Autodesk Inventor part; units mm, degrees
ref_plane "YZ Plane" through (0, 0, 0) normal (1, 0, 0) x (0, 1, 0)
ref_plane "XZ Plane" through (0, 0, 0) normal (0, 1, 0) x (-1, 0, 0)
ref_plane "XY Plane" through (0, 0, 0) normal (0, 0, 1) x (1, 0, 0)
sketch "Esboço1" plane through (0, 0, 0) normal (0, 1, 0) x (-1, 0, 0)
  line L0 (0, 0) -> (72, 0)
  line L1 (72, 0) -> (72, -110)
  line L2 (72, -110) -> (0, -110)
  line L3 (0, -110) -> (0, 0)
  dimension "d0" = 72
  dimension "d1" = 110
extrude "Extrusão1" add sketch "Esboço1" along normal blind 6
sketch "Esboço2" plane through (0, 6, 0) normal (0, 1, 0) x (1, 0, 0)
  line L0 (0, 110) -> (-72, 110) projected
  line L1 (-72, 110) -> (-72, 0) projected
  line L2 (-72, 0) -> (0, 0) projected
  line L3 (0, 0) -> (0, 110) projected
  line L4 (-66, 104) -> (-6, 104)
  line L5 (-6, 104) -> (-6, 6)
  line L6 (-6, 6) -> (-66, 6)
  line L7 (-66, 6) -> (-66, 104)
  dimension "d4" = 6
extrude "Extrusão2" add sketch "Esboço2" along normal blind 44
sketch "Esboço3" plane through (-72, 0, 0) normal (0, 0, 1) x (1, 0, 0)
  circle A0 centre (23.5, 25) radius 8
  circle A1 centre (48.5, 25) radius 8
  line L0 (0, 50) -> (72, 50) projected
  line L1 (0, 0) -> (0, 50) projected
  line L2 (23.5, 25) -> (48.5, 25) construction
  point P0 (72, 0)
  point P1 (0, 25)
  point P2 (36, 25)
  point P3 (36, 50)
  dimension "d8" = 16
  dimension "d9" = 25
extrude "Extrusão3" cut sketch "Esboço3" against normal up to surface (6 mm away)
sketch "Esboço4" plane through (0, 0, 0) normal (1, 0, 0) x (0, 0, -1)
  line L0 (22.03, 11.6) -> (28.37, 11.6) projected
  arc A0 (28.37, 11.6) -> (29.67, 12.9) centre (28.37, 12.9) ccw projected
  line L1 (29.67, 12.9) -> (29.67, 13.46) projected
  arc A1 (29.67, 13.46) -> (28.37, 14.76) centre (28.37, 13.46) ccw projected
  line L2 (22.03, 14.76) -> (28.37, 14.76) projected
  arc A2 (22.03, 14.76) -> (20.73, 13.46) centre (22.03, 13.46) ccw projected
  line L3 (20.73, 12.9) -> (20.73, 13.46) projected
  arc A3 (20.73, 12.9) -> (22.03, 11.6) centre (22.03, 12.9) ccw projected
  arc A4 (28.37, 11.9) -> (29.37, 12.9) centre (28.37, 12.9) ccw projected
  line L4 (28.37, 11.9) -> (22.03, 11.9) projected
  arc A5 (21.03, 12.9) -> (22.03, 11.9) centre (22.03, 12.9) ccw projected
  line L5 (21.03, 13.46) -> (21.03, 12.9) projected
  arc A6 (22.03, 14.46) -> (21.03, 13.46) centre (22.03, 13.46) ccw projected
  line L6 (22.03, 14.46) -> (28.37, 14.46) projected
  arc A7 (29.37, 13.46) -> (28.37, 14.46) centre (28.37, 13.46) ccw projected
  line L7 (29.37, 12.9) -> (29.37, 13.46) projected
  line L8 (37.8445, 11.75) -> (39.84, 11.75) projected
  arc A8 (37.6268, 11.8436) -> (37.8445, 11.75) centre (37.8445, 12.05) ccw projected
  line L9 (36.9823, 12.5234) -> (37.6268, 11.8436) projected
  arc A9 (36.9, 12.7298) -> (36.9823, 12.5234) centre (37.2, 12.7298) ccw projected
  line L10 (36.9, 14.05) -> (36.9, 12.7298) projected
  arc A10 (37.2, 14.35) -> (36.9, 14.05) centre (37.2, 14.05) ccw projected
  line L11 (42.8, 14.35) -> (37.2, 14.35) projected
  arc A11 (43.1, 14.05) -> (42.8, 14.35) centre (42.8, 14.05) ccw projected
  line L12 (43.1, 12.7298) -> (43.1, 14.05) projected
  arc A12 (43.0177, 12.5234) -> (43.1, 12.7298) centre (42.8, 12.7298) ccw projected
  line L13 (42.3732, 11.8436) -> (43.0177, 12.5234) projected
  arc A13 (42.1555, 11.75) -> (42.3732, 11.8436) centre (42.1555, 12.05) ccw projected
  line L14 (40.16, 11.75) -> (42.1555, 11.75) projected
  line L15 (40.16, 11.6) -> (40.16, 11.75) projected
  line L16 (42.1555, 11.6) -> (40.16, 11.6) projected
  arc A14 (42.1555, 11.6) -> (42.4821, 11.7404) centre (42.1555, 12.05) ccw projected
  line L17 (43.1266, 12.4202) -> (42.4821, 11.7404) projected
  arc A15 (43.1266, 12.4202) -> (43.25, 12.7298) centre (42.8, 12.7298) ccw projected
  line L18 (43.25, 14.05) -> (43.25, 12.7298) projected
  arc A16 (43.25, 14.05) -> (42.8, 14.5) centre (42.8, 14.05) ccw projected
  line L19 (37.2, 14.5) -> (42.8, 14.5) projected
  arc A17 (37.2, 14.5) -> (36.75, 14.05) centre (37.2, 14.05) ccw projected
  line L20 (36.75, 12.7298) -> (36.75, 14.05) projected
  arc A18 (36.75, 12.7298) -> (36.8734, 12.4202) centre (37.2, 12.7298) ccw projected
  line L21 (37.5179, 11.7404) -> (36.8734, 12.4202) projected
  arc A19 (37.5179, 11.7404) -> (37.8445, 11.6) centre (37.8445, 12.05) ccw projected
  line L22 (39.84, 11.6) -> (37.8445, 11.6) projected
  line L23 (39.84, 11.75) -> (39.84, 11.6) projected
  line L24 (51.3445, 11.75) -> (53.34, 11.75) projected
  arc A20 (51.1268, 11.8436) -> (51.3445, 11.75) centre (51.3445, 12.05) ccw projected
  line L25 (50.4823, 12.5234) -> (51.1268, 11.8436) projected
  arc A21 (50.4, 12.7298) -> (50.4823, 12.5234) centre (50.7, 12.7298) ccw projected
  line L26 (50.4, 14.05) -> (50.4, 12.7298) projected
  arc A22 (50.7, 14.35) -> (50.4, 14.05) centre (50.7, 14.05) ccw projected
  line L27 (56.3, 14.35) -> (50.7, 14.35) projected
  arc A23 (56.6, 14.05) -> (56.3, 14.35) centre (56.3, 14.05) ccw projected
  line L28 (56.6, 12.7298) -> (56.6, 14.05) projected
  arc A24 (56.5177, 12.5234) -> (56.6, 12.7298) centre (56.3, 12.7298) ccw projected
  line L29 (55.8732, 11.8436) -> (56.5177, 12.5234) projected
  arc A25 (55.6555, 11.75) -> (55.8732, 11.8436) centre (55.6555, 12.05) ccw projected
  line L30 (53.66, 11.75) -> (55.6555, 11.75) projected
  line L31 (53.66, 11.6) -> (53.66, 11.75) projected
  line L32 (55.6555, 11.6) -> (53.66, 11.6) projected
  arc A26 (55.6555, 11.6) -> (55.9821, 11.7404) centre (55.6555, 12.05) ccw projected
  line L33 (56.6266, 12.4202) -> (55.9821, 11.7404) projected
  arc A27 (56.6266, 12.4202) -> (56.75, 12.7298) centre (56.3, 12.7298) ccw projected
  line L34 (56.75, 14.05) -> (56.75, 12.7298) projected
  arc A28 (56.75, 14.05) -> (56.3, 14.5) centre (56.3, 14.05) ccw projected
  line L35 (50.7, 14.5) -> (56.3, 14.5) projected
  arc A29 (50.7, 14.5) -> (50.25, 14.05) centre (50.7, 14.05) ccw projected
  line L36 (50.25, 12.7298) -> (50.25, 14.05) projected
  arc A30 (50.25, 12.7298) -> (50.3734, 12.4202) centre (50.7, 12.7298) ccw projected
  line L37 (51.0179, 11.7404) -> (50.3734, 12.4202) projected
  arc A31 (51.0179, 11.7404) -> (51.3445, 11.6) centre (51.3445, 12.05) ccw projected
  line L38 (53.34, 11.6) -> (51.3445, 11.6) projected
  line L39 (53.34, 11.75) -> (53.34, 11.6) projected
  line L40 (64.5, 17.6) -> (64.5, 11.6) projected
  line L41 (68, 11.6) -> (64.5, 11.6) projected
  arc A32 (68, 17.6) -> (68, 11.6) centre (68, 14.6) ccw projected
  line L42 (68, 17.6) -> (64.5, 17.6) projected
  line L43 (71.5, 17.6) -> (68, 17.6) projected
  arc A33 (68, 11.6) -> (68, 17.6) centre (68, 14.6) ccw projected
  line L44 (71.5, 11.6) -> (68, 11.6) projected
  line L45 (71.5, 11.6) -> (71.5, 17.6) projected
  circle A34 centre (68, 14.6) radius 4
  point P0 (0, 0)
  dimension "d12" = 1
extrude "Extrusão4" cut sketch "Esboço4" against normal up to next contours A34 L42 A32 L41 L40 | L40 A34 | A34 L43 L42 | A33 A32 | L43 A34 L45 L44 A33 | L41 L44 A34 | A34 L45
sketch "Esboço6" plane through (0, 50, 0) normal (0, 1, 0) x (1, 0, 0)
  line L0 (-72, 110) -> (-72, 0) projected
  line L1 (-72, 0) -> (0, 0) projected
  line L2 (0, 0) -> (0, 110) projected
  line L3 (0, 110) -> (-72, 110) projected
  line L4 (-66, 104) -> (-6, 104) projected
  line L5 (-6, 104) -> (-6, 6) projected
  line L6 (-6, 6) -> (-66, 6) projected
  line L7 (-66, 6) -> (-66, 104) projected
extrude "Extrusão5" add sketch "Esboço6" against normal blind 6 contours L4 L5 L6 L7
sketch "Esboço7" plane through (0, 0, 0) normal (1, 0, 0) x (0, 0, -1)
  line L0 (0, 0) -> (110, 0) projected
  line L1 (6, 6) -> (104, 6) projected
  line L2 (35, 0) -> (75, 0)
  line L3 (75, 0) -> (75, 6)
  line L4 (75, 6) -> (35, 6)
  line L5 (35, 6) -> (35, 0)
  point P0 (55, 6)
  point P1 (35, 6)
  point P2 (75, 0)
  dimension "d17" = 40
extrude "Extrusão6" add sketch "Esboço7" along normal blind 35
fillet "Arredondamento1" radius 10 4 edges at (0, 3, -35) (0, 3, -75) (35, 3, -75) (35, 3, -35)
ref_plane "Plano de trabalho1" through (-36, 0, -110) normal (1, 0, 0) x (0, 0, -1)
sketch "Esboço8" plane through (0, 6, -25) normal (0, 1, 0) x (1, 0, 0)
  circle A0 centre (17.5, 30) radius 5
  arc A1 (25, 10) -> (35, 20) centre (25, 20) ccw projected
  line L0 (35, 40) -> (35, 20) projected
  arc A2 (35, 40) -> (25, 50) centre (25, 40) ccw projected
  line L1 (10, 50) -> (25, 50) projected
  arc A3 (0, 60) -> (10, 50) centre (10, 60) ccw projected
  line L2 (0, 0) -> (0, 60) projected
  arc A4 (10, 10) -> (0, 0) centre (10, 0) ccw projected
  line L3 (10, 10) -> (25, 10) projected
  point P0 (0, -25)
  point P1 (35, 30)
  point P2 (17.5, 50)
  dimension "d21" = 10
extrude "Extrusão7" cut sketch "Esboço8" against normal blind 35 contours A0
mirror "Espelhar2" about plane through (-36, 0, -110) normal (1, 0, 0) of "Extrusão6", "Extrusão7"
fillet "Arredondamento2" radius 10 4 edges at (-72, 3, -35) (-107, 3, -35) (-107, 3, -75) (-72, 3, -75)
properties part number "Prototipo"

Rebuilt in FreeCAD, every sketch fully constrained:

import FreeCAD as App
import Part
import Sketcher


def edges_at(feature, points):
    """Names of the edges that pass closest to the given points."""
    edges = feature.Shape.Edges
    near = lambda p: min(range(len(edges)), key=lambda i: edges[i].distToShape(Part.Vertex(*p))[0])
    return sorted({f"Edge{near(p) + 1}" for p in points})

doc = App.newDocument("Part")
body = doc.addObject("PartDesign::Body", "Body")

# Sketch on XZ plane
sketch1 = body.newObject("Sketcher::SketchObject", "Sketch")
sketch1.AttachmentSupport = (doc.getObject("XZ_Plane"), [""])
sketch1.MapMode = "FlatFace"
sketch1.addGeometry([
    Part.LineSegment(App.Vector(-72, 0, 0), App.Vector(0, 0, 0)),
    Part.LineSegment(App.Vector(0, 0, 0), App.Vector(0, -110, 0)),
    Part.LineSegment(App.Vector(0, -110, 0), App.Vector(-72, -110, 0)),
    Part.LineSegment(App.Vector(-72, -110, 0), App.Vector(-72, 0, 0)),
], False)
sketch1.addConstraint([
    Sketcher.Constraint("Coincident", 0, 2, 1, 1),
    Sketcher.Constraint("Coincident", 1, 2, 2, 1),
    Sketcher.Constraint("Coincident", 2, 2, 3, 1),
    Sketcher.Constraint("Coincident", 3, 2, 0, 1),
    Sketcher.Constraint("Horizontal", 0),
    Sketcher.Constraint("Vertical", 1),
    Sketcher.Constraint("Horizontal", 2),
    Sketcher.Constraint("Vertical", 3),
    Sketcher.Constraint("Coincident", 0, 2, -1, 1),
    Sketcher.Constraint("DistanceX", 0, 1, 0, 2, 72.0),
    Sketcher.Constraint("DistanceY", 1, 2, 1, 1, 110.0),
])
pad1 = body.newObject("PartDesign::Pad", "Pad")
pad1.Profile = sketch1
pad1.Length = 6
pad1.Reversed = True

# Sketch on XZ plane
sketch2 = body.newObject("Sketcher::SketchObject", "Sketch001")
sketch2.AttachmentSupport = (doc.getObject("XZ_Plane"), [""])
sketch2.MapMode = "FlatFace"
sketch2.AttachmentOffset = App.Placement(App.Vector(0, 0, -6), App.Rotation())
sketch2.addGeometry([
    Part.LineSegment(App.Vector(0, 0, 0), App.Vector(0, -110, 0)),  # 0
    Part.LineSegment(App.Vector(0, -110, 0), App.Vector(-72, -110, 0)),  # 1
    Part.LineSegment(App.Vector(-72, -110, 0), App.Vector(-72, 0, 0)),  # 2
    Part.LineSegment(App.Vector(-72, 0, 0), App.Vector(0, 0, 0)),  # 3
    Part.LineSegment(App.Vector(-66, -6, 0), App.Vector(-66, -104, 0)),  # 4
    Part.LineSegment(App.Vector(-66, -104, 0), App.Vector(-6, -104, 0)),  # 5
    Part.LineSegment(App.Vector(-6, -104, 0), App.Vector(-6, -6, 0)),  # 6
    Part.LineSegment(App.Vector(-6, -6, 0), App.Vector(-66, -6, 0)),  # 7
], False)
sketch2.addConstraint([
    Sketcher.Constraint("Coincident", 0, 2, 1, 1),
    Sketcher.Constraint("Coincident", 1, 2, 2, 1),
    Sketcher.Constraint("Coincident", 2, 2, 3, 1),
    Sketcher.Constraint("Coincident", 3, 2, 0, 1),
    Sketcher.Constraint("Coincident", 4, 2, 5, 1),
    Sketcher.Constraint("Coincident", 5, 2, 6, 1),
    Sketcher.Constraint("Coincident", 6, 2, 7, 1),
    Sketcher.Constraint("Coincident", 7, 2, 4, 1),
    Sketcher.Constraint("Vertical", 0),
    Sketcher.Constraint("Horizontal", 1),
    Sketcher.Constraint("Vertical", 2),
    Sketcher.Constraint("Horizontal", 3),
    Sketcher.Constraint("Vertical", 4),
    Sketcher.Constraint("Horizontal", 5),
    Sketcher.Constraint("Vertical", 6),
    Sketcher.Constraint("Horizontal", 7),
    Sketcher.Constraint("Coincident", 3, 2, -1, 1),
    Sketcher.Constraint("DistanceX", 5, 2, -1, 1, 6.0),
    Sketcher.Constraint("DistanceY", 6, 2, -1, 1, 6.0),
    Sketcher.Constraint("DistanceX", 1, 2, 4, 2, 6.0),
    Sketcher.Constraint("DistanceY", 1, 2, 4, 2, 6.0),
    Sketcher.Constraint("DistanceX", 1, 2, 1, 1, 72.0),
    Sketcher.Constraint("DistanceY", 0, 2, 0, 1, 110.0),
])
pad2 = body.newObject("PartDesign::Pad", "Pad001")
pad2.Profile = sketch2
pad2.Length = 44
pad2.Reversed = True

# Sketch on XY plane
sketch3 = body.newObject("Sketcher::SketchObject", "Sketch002")
sketch3.AttachmentSupport = (doc.getObject("XY_Plane"), [""])
sketch3.MapMode = "FlatFace"
sketch3.addGeometry([
    Part.Circle(App.Vector(-48.5, 25, 0), App.Vector(0, 0, 1), 8),
    Part.Circle(App.Vector(-23.5, 25, 0), App.Vector(0, 0, 1), 8),
], False)
sketch3.addConstraint([
    Sketcher.Constraint("Equal", 0, 1),
    Sketcher.Constraint("Horizontal", 0, 3, 1, 3),
    Sketcher.Constraint("Diameter", 0, 16.0),
    Sketcher.Constraint("DistanceY", -1, 1, 0, 3, 25.0),
    Sketcher.Constraint("DistanceX", 0, 3, 1, 3, 25.0),
    Sketcher.Constraint("DistanceX", 0, 3, -1, 1, 48.5),
])
pocket1 = body.newObject("PartDesign::Pocket", "Pocket")
pocket1.Profile = sketch3
pocket1.Length = 6

# Sketch on YZ plane
sketch4 = body.newObject("Sketcher::SketchObject", "Sketch003")
sketch4.AttachmentSupport = (doc.getObject("YZ_Plane"), [""])
sketch4.MapMode = "FlatFace"
sketch4.addGeometry(Part.Circle(App.Vector(14.6, -68, 0), App.Vector(0, 0, 1), 4), False)
sketch4.addConstraint([
    Sketcher.Constraint("Diameter", 0, 8.0),
    Sketcher.Constraint("DistanceY", 0, 3, -1, 1, 68.0),
    Sketcher.Constraint("DistanceX", -1, 1, 0, 3, 14.6),
])
pocket2 = body.newObject("PartDesign::Pocket", "Pocket001")
pocket2.Profile = sketch4
pocket2.Type = "UpToFirst"

# Sketch on XZ plane
sketch5 = body.newObject("Sketcher::SketchObject", "Sketch004")
sketch5.AttachmentSupport = (doc.getObject("XZ_Plane"), [""])
sketch5.MapMode = "FlatFace"
sketch5.AttachmentOffset = App.Placement(App.Vector(0, 0, -50), App.Rotation())
sketch5.addGeometry([
    Part.LineSegment(App.Vector(-6, -104, 0), App.Vector(-66, -104, 0)),
    Part.LineSegment(App.Vector(-66, -104, 0), App.Vector(-66, -6, 0)),
    Part.LineSegment(App.Vector(-66, -6, 0), App.Vector(-6, -6, 0)),
    Part.LineSegment(App.Vector(-6, -6, 0), App.Vector(-6, -104, 0)),
], False)
sketch5.addConstraint([
    Sketcher.Constraint("Coincident", 0, 2, 1, 1),
    Sketcher.Constraint("Coincident", 1, 2, 2, 1),
    Sketcher.Constraint("Coincident", 2, 2, 3, 1),
    Sketcher.Constraint("Coincident", 3, 2, 0, 1),
    Sketcher.Constraint("Horizontal", 0),
    Sketcher.Constraint("Vertical", 1),
    Sketcher.Constraint("Horizontal", 2),
    Sketcher.Constraint("Vertical", 3),
    Sketcher.Constraint("DistanceX", 0, 2, 0, 1, 60.0),
    Sketcher.Constraint("DistanceY", 1, 1, 1, 2, 98.0),
    Sketcher.Constraint("DistanceX", 0, 2, -1, 1, 66.0),
    Sketcher.Constraint("DistanceY", 0, 2, -1, 1, 104.0),
])
pad3 = body.newObject("PartDesign::Pad", "Pad002")
pad3.Profile = sketch5
pad3.Length = 6

# Sketch on YZ plane
sketch6 = body.newObject("Sketcher::SketchObject", "Sketch005")
sketch6.AttachmentSupport = (doc.getObject("YZ_Plane"), [""])
sketch6.MapMode = "FlatFace"
sketch6.addGeometry([
    Part.LineSegment(App.Vector(6, -35, 0), App.Vector(0, -35, 0)),
    Part.LineSegment(App.Vector(0, -35, 0), App.Vector(0, -75, 0)),
    Part.LineSegment(App.Vector(0, -75, 0), App.Vector(6, -75, 0)),
    Part.LineSegment(App.Vector(6, -75, 0), App.Vector(6, -35, 0)),
], False)
sketch6.addConstraint([
    Sketcher.Constraint("Coincident", 0, 2, 1, 1),
    Sketcher.Constraint("Coincident", 1, 2, 2, 1),
    Sketcher.Constraint("Coincident", 2, 2, 3, 1),
    Sketcher.Constraint("Coincident", 3, 2, 0, 1),
    Sketcher.Constraint("Horizontal", 0),
    Sketcher.Constraint("Vertical", 1),
    Sketcher.Constraint("Horizontal", 2),
    Sketcher.Constraint("Vertical", 3),
    Sketcher.Constraint("PointOnObject", 0, 2, -2),
    Sketcher.Constraint("DistanceY", 1, 2, 1, 1, 40.0),
    Sketcher.Constraint("DistanceX", 0, 2, 0, 1, 6.0),
    Sketcher.Constraint("DistanceY", 0, 2, -1, 1, 35.0),
])
pad4 = body.newObject("PartDesign::Pad", "Pad003")
pad4.Profile = sketch6
pad4.Length = 35
doc.recompute()

fillet = body.newObject("PartDesign::Fillet", "Fillet")
fillet.Base = (pad4, edges_at(pad4, [
    (0, 3, -35),
    (0, 3, -75),
    (35, 3, -75),
    (35, 3, -35),
]))
fillet.Radius = 10

# Sketch on XZ plane
sketch7 = body.newObject("Sketcher::SketchObject", "Sketch006")
sketch7.AttachmentSupport = (doc.getObject("XZ_Plane"), [""])
sketch7.MapMode = "FlatFace"
sketch7.AttachmentOffset = App.Placement(App.Vector(0, 0, -6), App.Rotation())
sketch7.addGeometry(Part.Circle(App.Vector(17.5, -55, 0), App.Vector(0, 0, 1), 5), False)
sketch7.addConstraint([
    Sketcher.Constraint("Diameter", 0, 10.0),
    Sketcher.Constraint("DistanceY", 0, 3, -1, 1, 55.0),
    Sketcher.Constraint("DistanceX", -1, 1, 0, 3, 17.5),
])
pocket3 = body.newObject("PartDesign::Pocket", "Pocket002")
pocket3.Profile = sketch7
pocket3.Length = 35
pocket3.Reversed = True
doc.recompute()

datumplane = body.newObject("PartDesign::Plane", "DatumPlane")
datumplane.AttachmentSupport = (doc.getObject("YZ_Plane"), [""])
datumplane.MapMode = "FlatFace"
datumplane.AttachmentOffset = App.Placement(App.Vector(0, 0, -36), App.Rotation())
mirrored = body.newObject("PartDesign::Mirrored", "Mirrored")
mirrored.Originals = [pad4, pocket3]
mirrored.MirrorPlane = (datumplane, [""])
body.Tip = mirrored
doc.recompute()

fillet2 = body.newObject("PartDesign::Fillet", "Fillet001")
fillet2.Base = (mirrored, edges_at(mirrored, [
    (-72, 3, -35),
    (-107, 3, -35),
    (-107, 3, -75),
    (-72, 3, -75),
]))
fillet2.Radius = 10

doc.recompute()
